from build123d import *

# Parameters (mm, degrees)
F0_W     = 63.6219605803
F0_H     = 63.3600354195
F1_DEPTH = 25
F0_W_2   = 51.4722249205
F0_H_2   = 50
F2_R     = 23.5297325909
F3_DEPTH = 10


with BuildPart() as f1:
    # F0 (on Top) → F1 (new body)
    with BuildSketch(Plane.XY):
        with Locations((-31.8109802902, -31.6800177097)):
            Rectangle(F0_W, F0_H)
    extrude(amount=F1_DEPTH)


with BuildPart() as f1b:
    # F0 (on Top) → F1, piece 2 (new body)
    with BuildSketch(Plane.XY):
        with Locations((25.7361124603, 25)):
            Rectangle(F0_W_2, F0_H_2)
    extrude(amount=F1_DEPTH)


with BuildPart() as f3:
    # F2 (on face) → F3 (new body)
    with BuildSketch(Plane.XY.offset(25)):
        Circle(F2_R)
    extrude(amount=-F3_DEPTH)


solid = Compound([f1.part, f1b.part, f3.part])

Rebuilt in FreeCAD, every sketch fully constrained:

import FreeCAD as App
import Part
import Sketcher
Q = App.Units.Quantity

doc = App.newDocument("Part")
body = doc.addObject("PartDesign::Body", "Body")

# Sketch on XY plane
sketch1 = body.newObject("Sketcher::SketchObject", "Sketch")
sketch1.AttachmentSupport = (doc.getObject("XY_Plane"), [""])
sketch1.MapMode = "FlatFace"
sketch1.addGeometry([
    Part.LineSegment(App.Vector(-64, 0, 0), App.Vector(-64, -63, 0)),
    Part.LineSegment(App.Vector(-64, -63, 0), App.Vector(0, -63, 0)),
    Part.LineSegment(App.Vector(0, -63, 0), App.Vector(0, 0, 0)),
    Part.LineSegment(App.Vector(0, 0, 0), App.Vector(-64, 0, 0)),
], False)
sketch1.addConstraint([
    Sketcher.Constraint("Coincident", 0, 2, 1, 1),
    Sketcher.Constraint("Coincident", 1, 2, 2, 1),
    Sketcher.Constraint("Coincident", 2, 2, 3, 1),
    Sketcher.Constraint("Coincident", 3, 2, 0, 1),
    Sketcher.Constraint("Vertical", 0),
    Sketcher.Constraint("Horizontal", 1),
    Sketcher.Constraint("Vertical", 2),
    Sketcher.Constraint("Horizontal", 3),
    Sketcher.Constraint("Coincident", 2, 2, -1, 1),
    Sketcher.Constraint("DistanceX", 1, 1, 1, 2, Q("63.621961 mm")),
    Sketcher.Constraint("DistanceY", 0, 2, 0, 1, Q("63.360035 mm")),
])
pad1 = body.newObject("PartDesign::Pad", "Pad")
pad1.Profile = sketch1
pad1.Length = 25
body2 = doc.addObject("PartDesign::Body", "Body001")

# Sketch on XY plane
sketch2 = body2.newObject("Sketcher::SketchObject", "Sketch001")
sketch2.AttachmentSupport = (doc.getObject("XY_Plane001"), [""])
sketch2.MapMode = "FlatFace"
sketch2.addGeometry([
    Part.LineSegment(App.Vector(0, 50, 0), App.Vector(0, 0, 0)),
    Part.LineSegment(App.Vector(0, 0, 0), App.Vector(51, 0, 0)),
    Part.LineSegment(App.Vector(51, 0, 0), App.Vector(51, 50, 0)),
    Part.LineSegment(App.Vector(51, 50, 0), App.Vector(0, 50, 0)),
], False)
sketch2.addConstraint([
    Sketcher.Constraint("Coincident", 0, 2, 1, 1),
    Sketcher.Constraint("Coincident", 1, 2, 2, 1),
    Sketcher.Constraint("Coincident", 2, 2, 3, 1),
    Sketcher.Constraint("Coincident", 3, 2, 0, 1),
    Sketcher.Constraint("Vertical", 0),
    Sketcher.Constraint("Horizontal", 1),
    Sketcher.Constraint("Vertical", 2),
    Sketcher.Constraint("Horizontal", 3),
    Sketcher.Constraint("Coincident", 0, 2, -1, 1),
    Sketcher.Constraint("DistanceY", 0, 2, 0, 1, Q("50 mm")),
    Sketcher.Constraint("DistanceX", 1, 1, 1, 2, Q("51.472225 mm")),
])
pad2 = body2.newObject("PartDesign::Pad", "Pad001")
pad2.Profile = sketch2
pad2.Length = 25
body3 = doc.addObject("PartDesign::Body", "Body002")

# Sketch on XY plane
sketch3 = body3.newObject("Sketcher::SketchObject", "Sketch002")
sketch3.AttachmentSupport = (doc.getObject("XY_Plane002"), [""])
sketch3.MapMode = "FlatFace"
sketch3.AttachmentOffset = App.Placement(App.Vector(0, 0, 25), App.Rotation())
sketch3.addGeometry(Part.Circle(App.Vector(0, 0, 0), App.Vector(0, 0, 1), 24), False)
sketch3.addConstraint([
    Sketcher.Constraint("Coincident", 0, 3, -1, 1),
    Sketcher.Constraint("Diameter", 0, Q("47.059465 mm")),
])
pad3 = body3.newObject("PartDesign::Pad", "Pad002")
pad3.Profile = sketch3
pad3.Length = 10
pad3.Reversed = True

doc.recompute()
